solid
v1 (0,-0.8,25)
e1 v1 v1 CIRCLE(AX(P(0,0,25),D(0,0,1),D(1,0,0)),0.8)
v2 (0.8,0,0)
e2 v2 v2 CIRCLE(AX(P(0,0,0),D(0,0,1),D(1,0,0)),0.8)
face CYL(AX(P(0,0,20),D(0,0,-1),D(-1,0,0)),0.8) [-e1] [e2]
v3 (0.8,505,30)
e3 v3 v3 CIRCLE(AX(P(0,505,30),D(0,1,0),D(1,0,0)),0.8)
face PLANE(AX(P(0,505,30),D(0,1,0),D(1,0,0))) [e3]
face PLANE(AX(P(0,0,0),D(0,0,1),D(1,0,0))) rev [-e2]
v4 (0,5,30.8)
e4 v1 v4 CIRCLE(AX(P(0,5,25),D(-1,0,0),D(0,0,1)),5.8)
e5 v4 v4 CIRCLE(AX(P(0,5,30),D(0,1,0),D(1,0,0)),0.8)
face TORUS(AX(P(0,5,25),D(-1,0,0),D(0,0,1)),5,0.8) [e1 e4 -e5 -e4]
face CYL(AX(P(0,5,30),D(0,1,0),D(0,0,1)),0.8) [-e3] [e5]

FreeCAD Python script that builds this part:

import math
import FreeCAD as App
import Part
import Sketcher
Q = App.Units.Quantity

doc = App.newDocument("Part")
body = doc.addObject("PartDesign::Body", "Body")

# Sketch on XY plane
sketch1 = doc.addObject("Sketcher::SketchObject", "Sketch")
body.addObject(sketch1)
sketch1.AttachmentSupport = (doc.XY_Plane, [""])
sketch1.MapMode = "FlatFace"
sketch1.addGeometry(Part.Circle(App.Vector(0, 0, 0), App.Vector(0, 0, 1), 0.8), False)
sketch1.addConstraint(Sketcher.Constraint("Coincident", 0, 3, -1, 1))
sketch1.addConstraint(Sketcher.Constraint("Diameter", 0, Q("1.6 mm")))
pad1 = doc.addObject("PartDesign::Pad", "Pad")
body.addObject(pad1)
pad1.Profile = sketch1
pad1.Length = 20

# Sketch on XY plane
sketch2 = doc.addObject("Sketcher::SketchObject", "Sketch001")
body.addObject(sketch2)
sketch2.AttachmentSupport = (doc.XY_Plane, [""])
sketch2.MapMode = "FlatFace"
sketch2.AttachmentOffset = App.Placement(App.Vector(0, 0, 20), App.Rotation())
sketch2.addGeometry(Part.Circle(App.Vector(0, 0, 0), App.Vector(0, 0, 1), 0.8), False)
sketch2.addConstraint(Sketcher.Constraint("Coincident", 0, 3, -1, 1))
sketch2.addConstraint(Sketcher.Constraint("Diameter", 0, Q("1.6 mm")))

# Sketch on YZ plane
sketch3 = doc.addObject("Sketcher::SketchObject", "Sketch002")
body.addObject(sketch3)
sketch3.AttachmentSupport = (doc.YZ_Plane, [""])
sketch3.MapMode = "FlatFace"
sketch3.addGeometry(Part.LineSegment(App.Vector(0, 20, 0), App.Vector(0, 25, 0)), False)
sketch3.addGeometry(Part.ArcOfCircle(Part.Circle(App.Vector(5, 25, 0), App.Vector(0, 0, 1), 5), math.radians(90), math.radians(180)), False)
sketch3.addGeometry(Part.LineSegment(App.Vector(5, 30, 0), App.Vector(505, 30, 0)), False)
sketch3.addConstraint(Sketcher.Constraint("Tangent", 0, 2, 1, 2))
sketch3.addConstraint(Sketcher.Constraint("Tangent", 1, 1, 2, 1))
sketch3.addConstraint(Sketcher.Constraint("Vertical", 0))
sketch3.addConstraint(Sketcher.Constraint("Horizontal", 2))
sketch3.addConstraint(Sketcher.Constraint("PointOnObject", 0, 1, -2))
sketch3.addConstraint(Sketcher.Constraint("Radius", 1, Q("5 mm")))
sketch3.addConstraint(Sketcher.Constraint("DistanceX", 2, 1, 2, 2, Q("500 mm")))
sketch3.addConstraint(Sketcher.Constraint("DistanceY", 0, 1, 0, 2, Q("5 mm")))
sketch3.addConstraint(Sketcher.Constraint("DistanceY", -1, 1, 1, 3, Q("25 mm")))
doc.recompute()

additivepipe = doc.addObject("PartDesign::AdditivePipe", "AdditivePipe")
body.addObject(additivepipe)
additivepipe.Profile = sketch2
additivepipe.Spine = (sketch3, ["Edge1", "Edge2", "Edge3"])

doc.recompute()
